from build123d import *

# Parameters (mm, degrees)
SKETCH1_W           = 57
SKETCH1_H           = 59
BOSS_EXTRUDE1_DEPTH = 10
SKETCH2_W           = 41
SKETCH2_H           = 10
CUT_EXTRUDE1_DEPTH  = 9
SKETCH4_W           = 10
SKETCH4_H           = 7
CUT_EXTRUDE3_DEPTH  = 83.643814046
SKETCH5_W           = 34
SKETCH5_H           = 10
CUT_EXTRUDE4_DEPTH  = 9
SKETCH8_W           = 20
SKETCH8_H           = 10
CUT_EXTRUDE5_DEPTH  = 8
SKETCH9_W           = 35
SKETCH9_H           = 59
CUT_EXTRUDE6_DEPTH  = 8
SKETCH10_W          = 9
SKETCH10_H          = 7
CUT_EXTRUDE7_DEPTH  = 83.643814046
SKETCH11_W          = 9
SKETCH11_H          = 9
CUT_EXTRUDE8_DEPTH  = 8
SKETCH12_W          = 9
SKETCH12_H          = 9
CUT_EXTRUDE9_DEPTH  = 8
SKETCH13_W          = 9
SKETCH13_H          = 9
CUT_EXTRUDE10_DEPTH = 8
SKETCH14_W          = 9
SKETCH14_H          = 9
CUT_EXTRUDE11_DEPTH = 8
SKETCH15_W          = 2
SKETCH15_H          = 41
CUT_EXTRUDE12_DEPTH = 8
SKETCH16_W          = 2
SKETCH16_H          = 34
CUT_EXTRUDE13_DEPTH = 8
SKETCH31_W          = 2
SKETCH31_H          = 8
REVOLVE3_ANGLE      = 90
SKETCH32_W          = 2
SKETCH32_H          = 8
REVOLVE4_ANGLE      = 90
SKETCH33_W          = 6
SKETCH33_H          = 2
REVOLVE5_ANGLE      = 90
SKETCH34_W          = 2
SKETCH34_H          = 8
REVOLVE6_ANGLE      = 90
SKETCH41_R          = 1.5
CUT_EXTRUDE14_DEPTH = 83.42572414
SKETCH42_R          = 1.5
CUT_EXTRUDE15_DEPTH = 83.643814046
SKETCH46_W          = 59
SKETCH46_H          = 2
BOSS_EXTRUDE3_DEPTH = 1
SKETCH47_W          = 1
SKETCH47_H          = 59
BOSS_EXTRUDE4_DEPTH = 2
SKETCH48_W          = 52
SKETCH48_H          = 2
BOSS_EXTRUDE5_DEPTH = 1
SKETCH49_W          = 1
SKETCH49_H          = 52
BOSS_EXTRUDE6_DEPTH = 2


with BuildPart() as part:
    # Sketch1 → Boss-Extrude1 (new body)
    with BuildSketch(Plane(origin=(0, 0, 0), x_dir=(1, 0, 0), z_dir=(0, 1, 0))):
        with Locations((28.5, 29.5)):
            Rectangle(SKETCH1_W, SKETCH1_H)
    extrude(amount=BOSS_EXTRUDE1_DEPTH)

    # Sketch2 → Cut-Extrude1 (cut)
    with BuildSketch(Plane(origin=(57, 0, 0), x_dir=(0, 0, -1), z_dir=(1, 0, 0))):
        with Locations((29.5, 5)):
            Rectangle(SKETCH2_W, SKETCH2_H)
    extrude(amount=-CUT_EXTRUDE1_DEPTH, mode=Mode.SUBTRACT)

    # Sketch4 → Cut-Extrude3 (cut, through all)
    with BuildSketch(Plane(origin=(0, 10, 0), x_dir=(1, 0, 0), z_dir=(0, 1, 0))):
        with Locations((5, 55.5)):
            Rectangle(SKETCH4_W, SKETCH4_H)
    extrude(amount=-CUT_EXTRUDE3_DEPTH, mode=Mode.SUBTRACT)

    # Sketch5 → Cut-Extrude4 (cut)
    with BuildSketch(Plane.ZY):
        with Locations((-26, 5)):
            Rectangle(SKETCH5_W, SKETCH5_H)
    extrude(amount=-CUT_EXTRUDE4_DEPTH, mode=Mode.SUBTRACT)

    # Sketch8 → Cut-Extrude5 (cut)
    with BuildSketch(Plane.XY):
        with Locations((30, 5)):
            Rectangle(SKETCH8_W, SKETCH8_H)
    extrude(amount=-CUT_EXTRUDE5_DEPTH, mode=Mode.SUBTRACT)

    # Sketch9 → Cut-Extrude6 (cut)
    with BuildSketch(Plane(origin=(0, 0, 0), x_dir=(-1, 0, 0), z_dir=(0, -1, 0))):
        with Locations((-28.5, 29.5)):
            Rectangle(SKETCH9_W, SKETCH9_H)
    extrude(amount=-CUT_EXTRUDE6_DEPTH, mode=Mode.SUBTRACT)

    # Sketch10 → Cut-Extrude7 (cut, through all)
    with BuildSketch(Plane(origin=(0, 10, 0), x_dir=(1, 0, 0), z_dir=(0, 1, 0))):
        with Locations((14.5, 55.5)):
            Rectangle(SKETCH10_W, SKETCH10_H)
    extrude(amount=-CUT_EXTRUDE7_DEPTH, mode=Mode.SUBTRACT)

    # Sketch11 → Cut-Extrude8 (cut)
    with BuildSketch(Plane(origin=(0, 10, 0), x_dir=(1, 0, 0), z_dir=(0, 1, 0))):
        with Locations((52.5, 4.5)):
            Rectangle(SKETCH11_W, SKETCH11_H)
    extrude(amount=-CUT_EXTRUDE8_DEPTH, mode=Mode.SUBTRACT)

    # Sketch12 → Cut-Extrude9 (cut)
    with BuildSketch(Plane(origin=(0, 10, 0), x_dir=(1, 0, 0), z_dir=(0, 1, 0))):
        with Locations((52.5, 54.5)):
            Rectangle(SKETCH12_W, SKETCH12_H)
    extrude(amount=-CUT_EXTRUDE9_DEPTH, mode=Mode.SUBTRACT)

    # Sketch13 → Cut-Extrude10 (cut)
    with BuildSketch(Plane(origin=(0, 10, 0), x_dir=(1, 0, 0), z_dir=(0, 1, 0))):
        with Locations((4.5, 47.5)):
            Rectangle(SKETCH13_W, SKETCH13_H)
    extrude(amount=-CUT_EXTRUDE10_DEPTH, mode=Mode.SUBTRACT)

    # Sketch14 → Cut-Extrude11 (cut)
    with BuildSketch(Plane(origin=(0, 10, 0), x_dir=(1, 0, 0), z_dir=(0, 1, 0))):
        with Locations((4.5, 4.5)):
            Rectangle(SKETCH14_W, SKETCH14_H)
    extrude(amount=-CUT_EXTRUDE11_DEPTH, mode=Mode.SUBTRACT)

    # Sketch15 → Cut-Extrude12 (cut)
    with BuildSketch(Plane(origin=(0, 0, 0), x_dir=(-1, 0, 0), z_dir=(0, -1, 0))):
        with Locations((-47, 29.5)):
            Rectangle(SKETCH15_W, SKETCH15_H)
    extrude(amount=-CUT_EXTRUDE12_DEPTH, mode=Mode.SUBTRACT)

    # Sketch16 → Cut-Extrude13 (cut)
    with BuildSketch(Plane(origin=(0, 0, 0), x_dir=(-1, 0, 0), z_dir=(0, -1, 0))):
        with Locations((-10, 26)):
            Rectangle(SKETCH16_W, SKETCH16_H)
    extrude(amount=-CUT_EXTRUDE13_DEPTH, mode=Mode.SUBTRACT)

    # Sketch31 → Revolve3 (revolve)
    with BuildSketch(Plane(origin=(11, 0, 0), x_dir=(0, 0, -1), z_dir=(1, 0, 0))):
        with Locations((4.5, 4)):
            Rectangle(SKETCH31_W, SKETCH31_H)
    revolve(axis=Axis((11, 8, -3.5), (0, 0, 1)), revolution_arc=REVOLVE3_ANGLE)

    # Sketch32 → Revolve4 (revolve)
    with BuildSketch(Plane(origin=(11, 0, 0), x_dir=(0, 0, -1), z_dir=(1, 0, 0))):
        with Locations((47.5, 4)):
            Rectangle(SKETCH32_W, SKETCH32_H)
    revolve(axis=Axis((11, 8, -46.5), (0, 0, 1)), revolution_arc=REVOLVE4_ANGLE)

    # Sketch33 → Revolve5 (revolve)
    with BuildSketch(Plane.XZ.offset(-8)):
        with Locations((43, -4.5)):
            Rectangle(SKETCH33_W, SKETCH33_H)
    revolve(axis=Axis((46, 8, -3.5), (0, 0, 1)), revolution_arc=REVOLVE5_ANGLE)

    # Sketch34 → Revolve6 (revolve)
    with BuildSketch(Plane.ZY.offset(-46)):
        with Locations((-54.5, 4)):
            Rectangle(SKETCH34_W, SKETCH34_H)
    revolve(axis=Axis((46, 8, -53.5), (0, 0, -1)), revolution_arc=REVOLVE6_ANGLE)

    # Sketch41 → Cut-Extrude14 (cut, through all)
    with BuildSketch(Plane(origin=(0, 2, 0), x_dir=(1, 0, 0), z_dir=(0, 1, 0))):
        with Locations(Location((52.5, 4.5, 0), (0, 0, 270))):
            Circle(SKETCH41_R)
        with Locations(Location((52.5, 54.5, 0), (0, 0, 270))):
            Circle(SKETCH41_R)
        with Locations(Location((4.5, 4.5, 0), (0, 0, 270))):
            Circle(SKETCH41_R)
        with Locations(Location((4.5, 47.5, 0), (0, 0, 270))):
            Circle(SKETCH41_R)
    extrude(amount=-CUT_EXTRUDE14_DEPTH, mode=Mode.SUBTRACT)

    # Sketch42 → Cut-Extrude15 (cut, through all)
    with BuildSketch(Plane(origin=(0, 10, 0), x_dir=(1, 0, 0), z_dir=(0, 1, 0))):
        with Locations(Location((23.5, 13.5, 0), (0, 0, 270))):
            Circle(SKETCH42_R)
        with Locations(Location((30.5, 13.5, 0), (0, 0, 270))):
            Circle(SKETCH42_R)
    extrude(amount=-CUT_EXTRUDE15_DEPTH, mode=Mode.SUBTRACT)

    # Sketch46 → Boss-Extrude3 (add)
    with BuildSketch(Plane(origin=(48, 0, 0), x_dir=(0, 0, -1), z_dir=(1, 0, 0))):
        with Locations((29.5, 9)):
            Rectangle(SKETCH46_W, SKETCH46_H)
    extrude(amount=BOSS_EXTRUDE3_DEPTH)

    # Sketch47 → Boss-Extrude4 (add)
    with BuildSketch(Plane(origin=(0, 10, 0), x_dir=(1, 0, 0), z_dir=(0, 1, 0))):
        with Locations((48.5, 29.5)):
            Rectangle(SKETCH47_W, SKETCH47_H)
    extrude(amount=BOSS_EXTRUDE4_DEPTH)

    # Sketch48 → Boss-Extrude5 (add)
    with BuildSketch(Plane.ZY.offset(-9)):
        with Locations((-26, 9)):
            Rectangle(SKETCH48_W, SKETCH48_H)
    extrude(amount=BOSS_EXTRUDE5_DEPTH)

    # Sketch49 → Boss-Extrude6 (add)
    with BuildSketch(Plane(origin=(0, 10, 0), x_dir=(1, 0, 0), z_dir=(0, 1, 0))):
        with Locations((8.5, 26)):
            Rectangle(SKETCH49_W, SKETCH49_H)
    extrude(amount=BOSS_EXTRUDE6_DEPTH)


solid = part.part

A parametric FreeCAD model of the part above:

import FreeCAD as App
import Part
import Sketcher
from FreeCAD import Vector


def add_polygon(sketch, points):
    """Adds a closed chain of lines whose ends are joined by coincident constraints."""
    first, n = sketch.GeometryCount, len(points)
    for a, b in zip(points, points[1:] + points[:1]):
        sketch.addGeometry(Part.LineSegment(App.Vector(*a, 0), App.Vector(*b, 0)), False)
    for i in range(n):
        sketch.addConstraint(Sketcher.Constraint("Coincident", first + i, 2, first + (i + 1) % n, 1))

doc = App.newDocument("Part")
body = doc.addObject("PartDesign::Body", "Body")

# Sketch on XZ plane
sketch1 = body.newObject("Sketcher::SketchObject", "Sketch")
sketch1.AttachmentSupport = (doc.getObject("XZ_Plane"), [""])
sketch1.MapMode = "FlatFace"
add_polygon(sketch1, [(0, -59), (0, 0), (57, 0), (57, -59)])  # lines 0-3
sketch1.addConstraint([
    Sketcher.Constraint("Vertical", 0),
    Sketcher.Constraint("Horizontal", 1),
    Sketcher.Constraint("Vertical", 2),
    Sketcher.Constraint("Horizontal", 3),
    Sketcher.Constraint("Coincident", 0, 2, -1, 1),
    Sketcher.Constraint("DistanceX", 1, 1, 1, 2, 57.0),
    Sketcher.Constraint("DistanceY", 0, 1, 0, 2, 59.0),
])
pad1 = body.newObject("PartDesign::Pad", "Pad")
pad1.Profile = sketch1
pad1.Length = 10
pad1.Reversed = True

# Sketch on YZ plane
sketch2 = body.newObject("Sketcher::SketchObject", "Sketch001")
sketch2.AttachmentSupport = (doc.getObject("YZ_Plane"), [""])
sketch2.MapMode = "FlatFace"
sketch2.AttachmentOffset = App.Placement(Vector(0, 0, 57), App.Rotation())
add_polygon(sketch2, [(10, -9), (0, -9), (0, -50), (10, -50)])  # lines 0-3
sketch2.addConstraint([
    Sketcher.Constraint("Horizontal", 0),
    Sketcher.Constraint("Vertical", 1),
    Sketcher.Constraint("Horizontal", 2),
    Sketcher.Constraint("Vertical", 3),
    Sketcher.Constraint("PointOnObject", 0, 2, -2),
    Sketcher.Constraint("DistanceX", 0, 2, 0, 1, 10.0),
    Sketcher.Constraint("DistanceY", 1, 2, 1, 1, 41.0),
    Sketcher.Constraint("DistanceY", 0, 2, -1, 1, 9.0),
])
pocket1 = body.newObject("PartDesign::Pocket", "Pocket")
pocket1.Profile = sketch2
pocket1.Length = 9

# Sketch on XZ plane
sketch3 = body.newObject("Sketcher::SketchObject", "Sketch002")
sketch3.AttachmentSupport = (doc.getObject("XZ_Plane"), [""])
sketch3.MapMode = "FlatFace"
sketch3.AttachmentOffset = App.Placement(Vector(0, 0, -10), App.Rotation())
add_polygon(sketch3, [(0, -59), (0, -52), (10, -52), (10, -59)])  # lines 0-3
sketch3.addConstraint([
    Sketcher.Constraint("Vertical", 0),
    Sketcher.Constraint("Horizontal", 1),
    Sketcher.Constraint("Vertical", 2),
    Sketcher.Constraint("Horizontal", 3),
    Sketcher.Constraint("PointOnObject", 0, 2, -2),
    Sketcher.Constraint("DistanceX", 1, 1, 1, 2, 10.0),
    Sketcher.Constraint("DistanceY", 0, 1, 0, 2, 7.0),
    Sketcher.Constraint("DistanceY", 0, 2, -1, 1, 52.0),
])
pocket2 = body.newObject("PartDesign::Pocket", "Pocket001")
pocket2.Profile = sketch3
pocket2.Type = "ThroughAll"
pocket2.Reversed = True

# Sketch on YZ plane
sketch4 = body.newObject("Sketcher::SketchObject", "Sketch003")
sketch4.AttachmentSupport = (doc.getObject("YZ_Plane"), [""])
sketch4.MapMode = "FlatFace"
add_polygon(sketch4, [(10, -43), (0, -43), (0, -9), (10, -9)])  # lines 0-3
sketch4.addConstraint([
    Sketcher.Constraint("Horizontal", 0),
    Sketcher.Constraint("Vertical", 1),
    Sketcher.Constraint("Horizontal", 2),
    Sketcher.Constraint("Vertical", 3),
    Sketcher.Constraint("PointOnObject", 0, 2, -2),
    Sketcher.Constraint("DistanceX", 0, 2, 0, 1, 10.0),
    Sketcher.Constraint("DistanceY", 1, 1, 1, 2, 34.0),
    Sketcher.Constraint("DistanceY", 0, 2, -1, 1, 43.0),
])
pocket3 = body.newObject("PartDesign::Pocket", "Pocket002")
pocket3.Profile = sketch4
pocket3.Length = 9
pocket3.Reversed = True

# Sketch on XY plane
sketch5 = body.newObject("Sketcher::SketchObject", "Sketch004")
sketch5.AttachmentSupport = (doc.getObject("XY_Plane"), [""])
sketch5.MapMode = "FlatFace"
add_polygon(sketch5, [(20, 10), (20, 0), (40, 0), (40, 10)])  # lines 0-3
sketch5.addConstraint([
    Sketcher.Constraint("Vertical", 0),
    Sketcher.Constraint("Horizontal", 1),
    Sketcher.Constraint("Vertical", 2),
    Sketcher.Constraint("Horizontal", 3),
    Sketcher.Constraint("PointOnObject", 0, 2, -1),
    Sketcher.Constraint("DistanceX", 1, 1, 1, 2, 20.0),
    Sketcher.Constraint("DistanceY", 0, 2, 0, 1, 10.0),
    Sketcher.Constraint("DistanceX", -1, 1, 0, 2, 20.0),
])
pocket4 = body.newObject("PartDesign::Pocket", "Pocket003")
pocket4.Profile = sketch5
pocket4.Length = 8

# Sketch on XZ plane
sketch6 = body.newObject("Sketcher::SketchObject", "Sketch005")
sketch6.AttachmentSupport = (doc.getObject("XZ_Plane"), [""])
sketch6.MapMode = "FlatFace"
add_polygon(sketch6, [(46, -59), (46, 0), (11, 0), (11, -59)])  # lines 0-3
sketch6.addConstraint([
    Sketcher.Constraint("Vertical", 0),
    Sketcher.Constraint("Horizontal", 1),
    Sketcher.Constraint("Vertical", 2),
    Sketcher.Constraint("Horizontal", 3),
    Sketcher.Constraint("PointOnObject", 0, 2, -1),
    Sketcher.Constraint("DistanceX", 1, 2, 1, 1, 35.0),
    Sketcher.Constraint("DistanceY", 0, 1, 0, 2, 59.0),
    Sketcher.Constraint("DistanceX", -1, 1, 0, 2, 46.0),
])
pocket5 = body.newObject("PartDesign::Pocket", "Pocket004")
pocket5.Profile = sketch6
pocket5.Length = 8

# Sketch on XZ plane
sketch7 = body.newObject("Sketcher::SketchObject", "Sketch006")
sketch7.AttachmentSupport = (doc.getObject("XZ_Plane"), [""])
sketch7.MapMode = "FlatFace"
sketch7.AttachmentOffset = App.Placement(Vector(0, 0, -10), App.Rotation())
add_polygon(sketch7, [(10, -59), (10, -52), (19, -52), (19, -59)])  # lines 0-3
sketch7.addConstraint([
    Sketcher.Constraint("Vertical", 0),
    Sketcher.Constraint("Horizontal", 1),
    Sketcher.Constraint("Vertical", 2),
    Sketcher.Constraint("Horizontal", 3),
    Sketcher.Constraint("DistanceX", 1, 1, 1, 2, 9.0),
    Sketcher.Constraint("DistanceY", 0, 1, 0, 2, 7.0),
    Sketcher.Constraint("DistanceX", -1, 1, 0, 2, 10.0),
    Sketcher.Constraint("DistanceY", 0, 2, -1, 1, 52.0),
])
pocket6 = body.newObject("PartDesign::Pocket", "Pocket005")
pocket6.Profile = sketch7
pocket6.Type = "ThroughAll"
pocket6.Reversed = True

# Sketch on XZ plane
sketch8 = body.newObject("Sketcher::SketchObject", "Sketch007")
sketch8.AttachmentSupport = (doc.getObject("XZ_Plane"), [""])
sketch8.MapMode = "FlatFace"
sketch8.AttachmentOffset = App.Placement(Vector(0, 0, -10), App.Rotation())
add_polygon(sketch8, [(48, -9), (48, 0), (57, 0), (57, -9)])  # lines 0-3
sketch8.addConstraint([
    Sketcher.Constraint("Vertical", 0),
    Sketcher.Constraint("Horizontal", 1),
    Sketcher.Constraint("Vertical", 2),
    Sketcher.Constraint("Horizontal", 3),
    Sketcher.Constraint("PointOnObject", 0, 2, -1),
    Sketcher.Constraint("Equal", 3, 0),
    Sketcher.Constraint("DistanceX", 1, 1, 1, 2, 9.0),
    Sketcher.Constraint("DistanceX", -1, 1, 0, 2, 48.0),
])
pocket7 = body.newObject("PartDesign::Pocket", "Pocket006")
pocket7.Profile = sketch8
pocket7.Length = 8
pocket7.Reversed = True

# Sketch on XZ plane
sketch9 = body.newObject("Sketcher::SketchObject", "Sketch008")
sketch9.AttachmentSupport = (doc.getObject("XZ_Plane"), [""])
sketch9.MapMode = "FlatFace"
sketch9.AttachmentOffset = App.Placement(Vector(0, 0, -10), App.Rotation())
add_polygon(sketch9, [(48, -59), (48, -50), (57, -50), (57, -59)])  # lines 0-3
sketch9.addConstraint([
    Sketcher.Constraint("Vertical", 0),
    Sketcher.Constraint("Horizontal", 1),
    Sketcher.Constraint("Vertical", 2),
    Sketcher.Constraint("Horizontal", 3),
    Sketcher.Constraint("Equal", 3, 0),
    Sketcher.Constraint("DistanceX", 1, 1, 1, 2, 9.0),
    Sketcher.Constraint("DistanceX", -1, 1, 0, 2, 48.0),
    Sketcher.Constraint("DistanceY", 0, 2, -1, 1, 50.0),
])
pocket8 = body.newObject("PartDesign::Pocket", "Pocket007")
pocket8.Profile = sketch9
pocket8.Length = 8
pocket8.Reversed = True

# Sketch on XZ plane
sketch10 = body.newObject("Sketcher::SketchObject", "Sketch009")
sketch10.AttachmentSupport = (doc.getObject("XZ_Plane"), [""])
sketch10.MapMode = "FlatFace"
sketch10.AttachmentOffset = App.Placement(Vector(0, 0, -10), App.Rotation())
add_polygon(sketch10, [(0, -52), (0, -43), (9, -43), (9, -52)])  # lines 0-3
sketch10.addConstraint([
    Sketcher.Constraint("Vertical", 0),
    Sketcher.Constraint("Horizontal", 1),
    Sketcher.Constraint("Vertical", 2),
    Sketcher.Constraint("Horizontal", 3),
    Sketcher.Constraint("PointOnObject", 0, 2, -2),
    Sketcher.Constraint("Equal", 3, 0),
    Sketcher.Constraint("DistanceX", 1, 1, 1, 2, 9.0),
    Sketcher.Constraint("DistanceY", 0, 2, -1, 1, 43.0),
])
pocket9 = body.newObject("PartDesign::Pocket", "Pocket008")
pocket9.Profile = sketch10
pocket9.Length = 8
pocket9.Reversed = True

# Sketch on XZ plane
sketch11 = body.newObject("Sketcher::SketchObject", "Sketch010")
sketch11.AttachmentSupport = (doc.getObject("XZ_Plane"), [""])
sketch11.MapMode = "FlatFace"
sketch11.AttachmentOffset = App.Placement(Vector(0, 0, -10), App.Rotation())
add_polygon(sketch11, [(0, -9), (0, 0), (9, 0), (9, -9)])  # lines 0-3
sketch11.addConstraint([
    Sketcher.Constraint("Vertical", 0),
    Sketcher.Constraint("Horizontal", 1),
    Sketcher.Constraint("Vertical", 2),
    Sketcher.Constraint("Horizontal", 3),
    Sketcher.Constraint("Coincident", 0, 2, -1, 1),
    Sketcher.Constraint("Equal", 3, 0),
    Sketcher.Constraint("DistanceX", 1, 1, 1, 2, 9.0),
])
pocket10 = body.newObject("PartDesign::Pocket", "Pocket009")
pocket10.Profile = sketch11
pocket10.Length = 8
pocket10.Reversed = True

# Sketch on XZ plane
sketch12 = body.newObject("Sketcher::SketchObject", "Sketch011")
sketch12.AttachmentSupport = (doc.getObject("XZ_Plane"), [""])
sketch12.MapMode = "FlatFace"
add_polygon(sketch12, [(48, -50), (48, -9), (46, -9), (46, -50)])  # lines 0-3
sketch12.addConstraint([
    Sketcher.Constraint("Vertical", 0),
    Sketcher.Constraint("Horizontal", 1),
    Sketcher.Constraint("Vertical", 2),
    Sketcher.Constraint("Horizontal", 3),
    Sketcher.Constraint("DistanceX", 1, 2, 1, 1, 2.0),
    Sketcher.Constraint("DistanceY", 0, 1, 0, 2, 41.0),
    Sketcher.Constraint("DistanceX", -1, 1, 0, 2, 48.0),
    Sketcher.Constraint("DistanceY", 0, 2, -1, 1, 9.0),
])
pocket11 = body.newObject("PartDesign::Pocket", "Pocket010")
pocket11.Profile = sketch12
pocket11.Length = 8

# Sketch on XZ plane
sketch13 = body.newObject("Sketcher::SketchObject", "Sketch012")
sketch13.AttachmentSupport = (doc.getObject("XZ_Plane"), [""])
sketch13.MapMode = "FlatFace"
add_polygon(sketch13, [(11, -43), (11, -9), (9, -9), (9, -43)])  # lines 0-3
sketch13.addConstraint([
    Sketcher.Constraint("Vertical", 0),
    Sketcher.Constraint("Horizontal", 1),
    Sketcher.Constraint("Vertical", 2),
    Sketcher.Constraint("Horizontal", 3),
    Sketcher.Constraint("DistanceX", 1, 2, 1, 1, 2.0),
    Sketcher.Constraint("DistanceY", 0, 1, 0, 2, 34.0),
    Sketcher.Constraint("DistanceX", -1, 1, 0, 2, 11.0),
    Sketcher.Constraint("DistanceY", 0, 2, -1, 1, 9.0),
])
pocket12 = body.newObject("PartDesign::Pocket", "Pocket011")
pocket12.Profile = sketch13
pocket12.Length = 8

# Sketch on YZ plane
sketch14 = body.newObject("Sketcher::SketchObject", "Sketch013")
sketch14.AttachmentSupport = (doc.getObject("YZ_Plane"), [""])
sketch14.MapMode = "FlatFace"
sketch14.AttachmentOffset = App.Placement(Vector(0, 0, 11), App.Rotation())
add_polygon(sketch14, [(8, -3.5), (0, -3.5), (0, -5.5), (8, -5.5)])  # lines 0-3
sketch14.addGeometry(Part.LineSegment(Vector(8, -5.5, 0), Vector(8, -3.5, 0)), True)  # axis
sketch14.addConstraint([
    Sketcher.Constraint("Horizontal", 0),
    Sketcher.Constraint("Vertical", 1),
    Sketcher.Constraint("Horizontal", 2),
    Sketcher.Constraint("Vertical", 3),
    Sketcher.Constraint("Vertical", 4),
    Sketcher.Constraint("Coincident", 4, 1, 2, 2),
    Sketcher.Constraint("PointOnObject", 0, 2, -2),
    Sketcher.Constraint("Horizontal", 0, 2, 4, 2),
    Sketcher.Constraint("DistanceX", 0, 2, 0, 1, 8.0),
    Sketcher.Constraint("DistanceY", 1, 2, 1, 1, 2.0),
    Sketcher.Constraint("DistanceY", 0, 2, -1, 1, 3.5),
])
revolution = body.newObject("PartDesign::Revolution", "Revolution")
revolution.Profile = sketch14
revolution.ReferenceAxis = (sketch14, ["Axis0"])
revolution.Angle = 90

# Sketch on YZ plane
sketch15 = body.newObject("Sketcher::SketchObject", "Sketch014")
sketch15.AttachmentSupport = (doc.getObject("YZ_Plane"), [""])
sketch15.MapMode = "FlatFace"
sketch15.AttachmentOffset = App.Placement(Vector(0, 0, 11), App.Rotation())
add_polygon(sketch15, [(8, -46.5), (0, -46.5), (0, -48.5), (8, -48.5)])  # lines 0-3
sketch15.addGeometry(Part.LineSegment(Vector(8, -48.5, 0), Vector(8, -46.5, 0)), True)  # axis
sketch15.addConstraint([
    Sketcher.Constraint("Horizontal", 0),
    Sketcher.Constraint("Vertical", 1),
    Sketcher.Constraint("Horizontal", 2),
    Sketcher.Constraint("Vertical", 3),
    Sketcher.Constraint("Vertical", 4),
    Sketcher.Constraint("Coincident", 4, 1, 2, 2),
    Sketcher.Constraint("PointOnObject", 0, 2, -2),
    Sketcher.Constraint("Horizontal", 0, 2, 4, 2),
    Sketcher.Constraint("DistanceX", 0, 2, 0, 1, 8.0),
    Sketcher.Constraint("DistanceY", 1, 2, 1, 1, 2.0),
    Sketcher.Constraint("DistanceY", 0, 2, -1, 1, 46.5),
])
revolution2 = body.newObject("PartDesign::Revolution", "Revolution001")
revolution2.Profile = sketch15
revolution2.ReferenceAxis = (sketch15, ["Axis0"])
revolution2.Angle = 90

# Sketch on XZ plane
sketch16 = body.newObject("Sketcher::SketchObject", "Sketch015")
sketch16.AttachmentSupport = (doc.getObject("XZ_Plane"), [""])
sketch16.MapMode = "FlatFace"
sketch16.AttachmentOffset = App.Placement(Vector(0, 0, -8), App.Rotation())
add_polygon(sketch16, [(40, -3.5), (40, -5.5), (46, -5.5), (46, -3.5)])  # lines 0-3
sketch16.addGeometry(Part.LineSegment(Vector(46, -5.5, 0), Vector(46, -3.5, 0)), True)  # axis
sketch16.addConstraint([
    Sketcher.Constraint("Vertical", 0),
    Sketcher.Constraint("Horizontal", 1),
    Sketcher.Constraint("Vertical", 2),
    Sketcher.Constraint("Horizontal", 3),
    Sketcher.Constraint("Vertical", 4),
    Sketcher.Constraint("Coincident", 4, 1, 1, 2),
    Sketcher.Constraint("Horizontal", 3, 2, 4, 2),
    Sketcher.Constraint("DistanceX", 1, 1, 1, 2, 6.0),
    Sketcher.Constraint("DistanceY", 0, 2, 0, 1, 2.0),
    Sketcher.Constraint("DistanceX", -1, 1, 0, 2, 40.0),
    Sketcher.Constraint("DistanceY", 0, 2, -1, 1, 5.5),
])
revolution3 = body.newObject("PartDesign::Revolution", "Revolution002")
revolution3.Profile = sketch16
revolution3.ReferenceAxis = (sketch16, ["Axis0"])
revolution3.Angle = 90

# Sketch on YZ plane
sketch17 = body.newObject("Sketcher::SketchObject", "Sketch016")
sketch17.AttachmentSupport = (doc.getObject("YZ_Plane"), [""])
sketch17.MapMode = "FlatFace"
sketch17.AttachmentOffset = App.Placement(Vector(0, 0, 46), App.Rotation())
add_polygon(sketch17, [(8, -55.5), (0, -55.5), (0, -53.5), (8, -53.5)])  # lines 0-3
sketch17.addGeometry(Part.LineSegment(Vector(8, -53.5, 0), Vector(8, -55.5, 0)), True)  # axis
sketch17.addConstraint([
    Sketcher.Constraint("Horizontal", 0),
    Sketcher.Constraint("Vertical", 1),
    Sketcher.Constraint("Horizontal", 2),
    Sketcher.Constraint("Vertical", 3),
    Sketcher.Constraint("Vertical", 4),
    Sketcher.Constraint("Coincident", 4, 1, 2, 2),
    Sketcher.Constraint("PointOnObject", 0, 2, -2),
    Sketcher.Constraint("Horizontal", 0, 2, 4, 2),
    Sketcher.Constraint("DistanceX", 0, 2, 0, 1, 8.0),
    Sketcher.Constraint("DistanceY", 1, 1, 1, 2, 2.0),
    Sketcher.Constraint("DistanceY", 0, 2, -1, 1, 55.5),
])
revolution4 = body.newObject("PartDesign::Revolution", "Revolution003")
revolution4.Profile = sketch17
revolution4.ReferenceAxis = (sketch17, ["Axis0"])
revolution4.Angle = 90

# Sketch on XZ plane
sketch18 = body.newObject("Sketcher::SketchObject", "Sketch017")
sketch18.AttachmentSupport = (doc.getObject("XZ_Plane"), [""])
sketch18.MapMode = "FlatFace"
sketch18.AttachmentOffset = App.Placement(Vector(0, 0, -2), App.Rotation())
sketch18.addGeometry([
    Part.Circle(Vector(52.5, -4.5, 0), Vector(0, 0, 1), 1.5),
    Part.Circle(Vector(52.5, -54.5, 0), Vector(0, 0, 1), 1.5),
    Part.Circle(Vector(4.5, -4.5, 0), Vector(0, 0, 1), 1.5),
    Part.Circle(Vector(4.5, -47.5, 0), Vector(0, 0, 1), 1.5),
], False)
sketch18.addConstraint([
    Sketcher.Constraint("Equal", 0, 1),
    Sketcher.Constraint("Equal", 1, 2),
    Sketcher.Constraint("Equal", 2, 3),
    Sketcher.Constraint("Horizontal", 0, 3, 2, 3),
    Sketcher.Constraint("Vertical", 0, 3, 1, 3),
    Sketcher.Constraint("Vertical", 2, 3, 3, 3),
    Sketcher.Constraint("Diameter", 0, 3.0),
    Sketcher.Constraint("DistanceY", 1, 3, 0, 3, 50.0),
    Sketcher.Constraint("DistanceX", 2, 3, 0, 3, 48.0),
    Sketcher.Constraint("DistanceY", 3, 3, 2, 3, 43.0),
    Sketcher.Constraint("DistanceX", -1, 1, 0, 3, 52.5),
    Sketcher.Constraint("DistanceY", 0, 3, -1, 1, 4.5),
])
pocket13 = body.newObject("PartDesign::Pocket", "Pocket012")
pocket13.Profile = sketch18
pocket13.Type = "ThroughAll"
pocket13.Reversed = True

# Sketch on XZ plane
sketch19 = body.newObject("Sketcher::SketchObject", "Sketch018")
sketch19.AttachmentSupport = (doc.getObject("XZ_Plane"), [""])
sketch19.MapMode = "FlatFace"
sketch19.AttachmentOffset = App.Placement(Vector(0, 0, -10), App.Rotation())
sketch19.addGeometry([
    Part.Circle(Vector(23.5, -13.5, 0), Vector(0, 0, 1), 1.5),
    Part.Circle(Vector(30.5, -13.5, 0), Vector(0, 0, 1), 1.5),
], False)
sketch19.addConstraint([
    Sketcher.Constraint("Equal", 0, 1),
    Sketcher.Constraint("Horizontal", 0, 3, 1, 3),
    Sketcher.Constraint("Diameter", 0, 3.0),
    Sketcher.Constraint("DistanceX", 0, 3, 1, 3, 7.0),
    Sketcher.Constraint("DistanceX", -1, 1, 0, 3, 23.5),
    Sketcher.Constraint("DistanceY", 0, 3, -1, 1, 13.5),
])
pocket14 = body.newObject("PartDesign::Pocket", "Pocket013")
pocket14.Profile = sketch19
pocket14.Type = "ThroughAll"
pocket14.Reversed = True

# Sketch on YZ plane
sketch20 = body.newObject("Sketcher::SketchObject", "Sketch019")
sketch20.AttachmentSupport = (doc.getObject("YZ_Plane"), [""])
sketch20.MapMode = "FlatFace"
sketch20.AttachmentOffset = App.Placement(Vector(0, 0, 48), App.Rotation())
add_polygon(sketch20, [(10, 0), (8, 0), (8, -59), (10, -59)])  # lines 0-3
sketch20.addConstraint([
    Sketcher.Constraint("Horizontal", 0),
    Sketcher.Constraint("Vertical", 1),
    Sketcher.Constraint("Horizontal", 2),
    Sketcher.Constraint("Vertical", 3),
    Sketcher.Constraint("PointOnObject", 0, 2, -1),
    Sketcher.Constraint("DistanceX", 0, 2, 0, 1, 2.0),
    Sketcher.Constraint("DistanceY", 1, 2, 1, 1, 59.0),
    Sketcher.Constraint("DistanceX", -1, 1, 0, 2, 8.0),
])
pad2 = body.newObject("PartDesign::Pad", "Pad001")
pad2.Profile = sketch20
pad2.Length = 1

# Sketch on XZ plane
sketch21 = body.newObject("Sketcher::SketchObject", "Sketch020")
sketch21.AttachmentSupport = (doc.getObject("XZ_Plane"), [""])
sketch21.MapMode = "FlatFace"
sketch21.AttachmentOffset = App.Placement(Vector(0, 0, -10), App.Rotation())
add_polygon(sketch21, [(48, -59), (48, 0), (49, 0), (49, -59)])  # lines 0-3
sketch21.addConstraint([
    Sketcher.Constraint("Vertical", 0),
    Sketcher.Constraint("Horizontal", 1),
    Sketcher.Constraint("Vertical", 2),
    Sketcher.Constraint("Horizontal", 3),
    Sketcher.Constraint("PointOnObject", 0, 2, -1),
    Sketcher.Constraint("DistanceX", 1, 1, 1, 2, 1.0),
    Sketcher.Constraint("DistanceY", 0, 1, 0, 2, 59.0),
    Sketcher.Constraint("DistanceX", -1, 1, 0, 2, 48.0),
])
pad3 = body.newObject("PartDesign::Pad", "Pad002")
pad3.Profile = sketch21
pad3.Length = 2
pad3.Reversed = True

# Sketch on YZ plane
sketch22 = body.newObject("Sketcher::SketchObject", "Sketch021")
sketch22.AttachmentSupport = (doc.getObject("YZ_Plane"), [""])
sketch22.MapMode = "FlatFace"
sketch22.AttachmentOffset = App.Placement(Vector(0, 0, 9), App.Rotation())
add_polygon(sketch22, [(10, -52), (8, -52), (8, 0), (10, 0)])  # lines 0-3
sketch22.addConstraint([
    Sketcher.Constraint("Horizontal", 0),
    Sketcher.Constraint("Vertical", 1),
    Sketcher.Constraint("Horizontal", 2),
    Sketcher.Constraint("Vertical", 3),
    Sketcher.Constraint("PointOnObject", 1, 2, -1),
    Sketcher.Constraint("DistanceX", 0, 2, 0, 1, 2.0),
    Sketcher.Constraint("DistanceY", 1, 1, 1, 2, 52.0),
    Sketcher.Constraint("DistanceX", -1, 1, 0, 2, 8.0),
])
pad4 = body.newObject("PartDesign::Pad", "Pad003")
pad4.Profile = sketch22
pad4.Length = 1
pad4.Reversed = True

# Sketch on XZ plane
sketch23 = body.newObject("Sketcher::SketchObject", "Sketch022")
sketch23.AttachmentSupport = (doc.getObject("XZ_Plane"), [""])
sketch23.MapMode = "FlatFace"
sketch23.AttachmentOffset = App.Placement(Vector(0, 0, -10), App.Rotation())
add_polygon(sketch23, [(8, -52), (8, 0), (9, 0), (9, -52)])  # lines 0-3
sketch23.addConstraint([
    Sketcher.Constraint("Vertical", 0),
    Sketcher.Constraint("Horizontal", 1),
    Sketcher.Constraint("Vertical", 2),
    Sketcher.Constraint("Horizontal", 3),
    Sketcher.Constraint("PointOnObject", 0, 2, -1),
    Sketcher.Constraint("DistanceX", 1, 1, 1, 2, 1.0),
    Sketcher.Constraint("DistanceY", 0, 1, 0, 2, 52.0),
    Sketcher.Constraint("DistanceX", -1, 1, 0, 2, 8.0),
])
pad5 = body.newObject("PartDesign::Pad", "Pad004")
pad5.Profile = sketch23
pad5.Length = 2
pad5.Reversed = True

doc.recompute()
